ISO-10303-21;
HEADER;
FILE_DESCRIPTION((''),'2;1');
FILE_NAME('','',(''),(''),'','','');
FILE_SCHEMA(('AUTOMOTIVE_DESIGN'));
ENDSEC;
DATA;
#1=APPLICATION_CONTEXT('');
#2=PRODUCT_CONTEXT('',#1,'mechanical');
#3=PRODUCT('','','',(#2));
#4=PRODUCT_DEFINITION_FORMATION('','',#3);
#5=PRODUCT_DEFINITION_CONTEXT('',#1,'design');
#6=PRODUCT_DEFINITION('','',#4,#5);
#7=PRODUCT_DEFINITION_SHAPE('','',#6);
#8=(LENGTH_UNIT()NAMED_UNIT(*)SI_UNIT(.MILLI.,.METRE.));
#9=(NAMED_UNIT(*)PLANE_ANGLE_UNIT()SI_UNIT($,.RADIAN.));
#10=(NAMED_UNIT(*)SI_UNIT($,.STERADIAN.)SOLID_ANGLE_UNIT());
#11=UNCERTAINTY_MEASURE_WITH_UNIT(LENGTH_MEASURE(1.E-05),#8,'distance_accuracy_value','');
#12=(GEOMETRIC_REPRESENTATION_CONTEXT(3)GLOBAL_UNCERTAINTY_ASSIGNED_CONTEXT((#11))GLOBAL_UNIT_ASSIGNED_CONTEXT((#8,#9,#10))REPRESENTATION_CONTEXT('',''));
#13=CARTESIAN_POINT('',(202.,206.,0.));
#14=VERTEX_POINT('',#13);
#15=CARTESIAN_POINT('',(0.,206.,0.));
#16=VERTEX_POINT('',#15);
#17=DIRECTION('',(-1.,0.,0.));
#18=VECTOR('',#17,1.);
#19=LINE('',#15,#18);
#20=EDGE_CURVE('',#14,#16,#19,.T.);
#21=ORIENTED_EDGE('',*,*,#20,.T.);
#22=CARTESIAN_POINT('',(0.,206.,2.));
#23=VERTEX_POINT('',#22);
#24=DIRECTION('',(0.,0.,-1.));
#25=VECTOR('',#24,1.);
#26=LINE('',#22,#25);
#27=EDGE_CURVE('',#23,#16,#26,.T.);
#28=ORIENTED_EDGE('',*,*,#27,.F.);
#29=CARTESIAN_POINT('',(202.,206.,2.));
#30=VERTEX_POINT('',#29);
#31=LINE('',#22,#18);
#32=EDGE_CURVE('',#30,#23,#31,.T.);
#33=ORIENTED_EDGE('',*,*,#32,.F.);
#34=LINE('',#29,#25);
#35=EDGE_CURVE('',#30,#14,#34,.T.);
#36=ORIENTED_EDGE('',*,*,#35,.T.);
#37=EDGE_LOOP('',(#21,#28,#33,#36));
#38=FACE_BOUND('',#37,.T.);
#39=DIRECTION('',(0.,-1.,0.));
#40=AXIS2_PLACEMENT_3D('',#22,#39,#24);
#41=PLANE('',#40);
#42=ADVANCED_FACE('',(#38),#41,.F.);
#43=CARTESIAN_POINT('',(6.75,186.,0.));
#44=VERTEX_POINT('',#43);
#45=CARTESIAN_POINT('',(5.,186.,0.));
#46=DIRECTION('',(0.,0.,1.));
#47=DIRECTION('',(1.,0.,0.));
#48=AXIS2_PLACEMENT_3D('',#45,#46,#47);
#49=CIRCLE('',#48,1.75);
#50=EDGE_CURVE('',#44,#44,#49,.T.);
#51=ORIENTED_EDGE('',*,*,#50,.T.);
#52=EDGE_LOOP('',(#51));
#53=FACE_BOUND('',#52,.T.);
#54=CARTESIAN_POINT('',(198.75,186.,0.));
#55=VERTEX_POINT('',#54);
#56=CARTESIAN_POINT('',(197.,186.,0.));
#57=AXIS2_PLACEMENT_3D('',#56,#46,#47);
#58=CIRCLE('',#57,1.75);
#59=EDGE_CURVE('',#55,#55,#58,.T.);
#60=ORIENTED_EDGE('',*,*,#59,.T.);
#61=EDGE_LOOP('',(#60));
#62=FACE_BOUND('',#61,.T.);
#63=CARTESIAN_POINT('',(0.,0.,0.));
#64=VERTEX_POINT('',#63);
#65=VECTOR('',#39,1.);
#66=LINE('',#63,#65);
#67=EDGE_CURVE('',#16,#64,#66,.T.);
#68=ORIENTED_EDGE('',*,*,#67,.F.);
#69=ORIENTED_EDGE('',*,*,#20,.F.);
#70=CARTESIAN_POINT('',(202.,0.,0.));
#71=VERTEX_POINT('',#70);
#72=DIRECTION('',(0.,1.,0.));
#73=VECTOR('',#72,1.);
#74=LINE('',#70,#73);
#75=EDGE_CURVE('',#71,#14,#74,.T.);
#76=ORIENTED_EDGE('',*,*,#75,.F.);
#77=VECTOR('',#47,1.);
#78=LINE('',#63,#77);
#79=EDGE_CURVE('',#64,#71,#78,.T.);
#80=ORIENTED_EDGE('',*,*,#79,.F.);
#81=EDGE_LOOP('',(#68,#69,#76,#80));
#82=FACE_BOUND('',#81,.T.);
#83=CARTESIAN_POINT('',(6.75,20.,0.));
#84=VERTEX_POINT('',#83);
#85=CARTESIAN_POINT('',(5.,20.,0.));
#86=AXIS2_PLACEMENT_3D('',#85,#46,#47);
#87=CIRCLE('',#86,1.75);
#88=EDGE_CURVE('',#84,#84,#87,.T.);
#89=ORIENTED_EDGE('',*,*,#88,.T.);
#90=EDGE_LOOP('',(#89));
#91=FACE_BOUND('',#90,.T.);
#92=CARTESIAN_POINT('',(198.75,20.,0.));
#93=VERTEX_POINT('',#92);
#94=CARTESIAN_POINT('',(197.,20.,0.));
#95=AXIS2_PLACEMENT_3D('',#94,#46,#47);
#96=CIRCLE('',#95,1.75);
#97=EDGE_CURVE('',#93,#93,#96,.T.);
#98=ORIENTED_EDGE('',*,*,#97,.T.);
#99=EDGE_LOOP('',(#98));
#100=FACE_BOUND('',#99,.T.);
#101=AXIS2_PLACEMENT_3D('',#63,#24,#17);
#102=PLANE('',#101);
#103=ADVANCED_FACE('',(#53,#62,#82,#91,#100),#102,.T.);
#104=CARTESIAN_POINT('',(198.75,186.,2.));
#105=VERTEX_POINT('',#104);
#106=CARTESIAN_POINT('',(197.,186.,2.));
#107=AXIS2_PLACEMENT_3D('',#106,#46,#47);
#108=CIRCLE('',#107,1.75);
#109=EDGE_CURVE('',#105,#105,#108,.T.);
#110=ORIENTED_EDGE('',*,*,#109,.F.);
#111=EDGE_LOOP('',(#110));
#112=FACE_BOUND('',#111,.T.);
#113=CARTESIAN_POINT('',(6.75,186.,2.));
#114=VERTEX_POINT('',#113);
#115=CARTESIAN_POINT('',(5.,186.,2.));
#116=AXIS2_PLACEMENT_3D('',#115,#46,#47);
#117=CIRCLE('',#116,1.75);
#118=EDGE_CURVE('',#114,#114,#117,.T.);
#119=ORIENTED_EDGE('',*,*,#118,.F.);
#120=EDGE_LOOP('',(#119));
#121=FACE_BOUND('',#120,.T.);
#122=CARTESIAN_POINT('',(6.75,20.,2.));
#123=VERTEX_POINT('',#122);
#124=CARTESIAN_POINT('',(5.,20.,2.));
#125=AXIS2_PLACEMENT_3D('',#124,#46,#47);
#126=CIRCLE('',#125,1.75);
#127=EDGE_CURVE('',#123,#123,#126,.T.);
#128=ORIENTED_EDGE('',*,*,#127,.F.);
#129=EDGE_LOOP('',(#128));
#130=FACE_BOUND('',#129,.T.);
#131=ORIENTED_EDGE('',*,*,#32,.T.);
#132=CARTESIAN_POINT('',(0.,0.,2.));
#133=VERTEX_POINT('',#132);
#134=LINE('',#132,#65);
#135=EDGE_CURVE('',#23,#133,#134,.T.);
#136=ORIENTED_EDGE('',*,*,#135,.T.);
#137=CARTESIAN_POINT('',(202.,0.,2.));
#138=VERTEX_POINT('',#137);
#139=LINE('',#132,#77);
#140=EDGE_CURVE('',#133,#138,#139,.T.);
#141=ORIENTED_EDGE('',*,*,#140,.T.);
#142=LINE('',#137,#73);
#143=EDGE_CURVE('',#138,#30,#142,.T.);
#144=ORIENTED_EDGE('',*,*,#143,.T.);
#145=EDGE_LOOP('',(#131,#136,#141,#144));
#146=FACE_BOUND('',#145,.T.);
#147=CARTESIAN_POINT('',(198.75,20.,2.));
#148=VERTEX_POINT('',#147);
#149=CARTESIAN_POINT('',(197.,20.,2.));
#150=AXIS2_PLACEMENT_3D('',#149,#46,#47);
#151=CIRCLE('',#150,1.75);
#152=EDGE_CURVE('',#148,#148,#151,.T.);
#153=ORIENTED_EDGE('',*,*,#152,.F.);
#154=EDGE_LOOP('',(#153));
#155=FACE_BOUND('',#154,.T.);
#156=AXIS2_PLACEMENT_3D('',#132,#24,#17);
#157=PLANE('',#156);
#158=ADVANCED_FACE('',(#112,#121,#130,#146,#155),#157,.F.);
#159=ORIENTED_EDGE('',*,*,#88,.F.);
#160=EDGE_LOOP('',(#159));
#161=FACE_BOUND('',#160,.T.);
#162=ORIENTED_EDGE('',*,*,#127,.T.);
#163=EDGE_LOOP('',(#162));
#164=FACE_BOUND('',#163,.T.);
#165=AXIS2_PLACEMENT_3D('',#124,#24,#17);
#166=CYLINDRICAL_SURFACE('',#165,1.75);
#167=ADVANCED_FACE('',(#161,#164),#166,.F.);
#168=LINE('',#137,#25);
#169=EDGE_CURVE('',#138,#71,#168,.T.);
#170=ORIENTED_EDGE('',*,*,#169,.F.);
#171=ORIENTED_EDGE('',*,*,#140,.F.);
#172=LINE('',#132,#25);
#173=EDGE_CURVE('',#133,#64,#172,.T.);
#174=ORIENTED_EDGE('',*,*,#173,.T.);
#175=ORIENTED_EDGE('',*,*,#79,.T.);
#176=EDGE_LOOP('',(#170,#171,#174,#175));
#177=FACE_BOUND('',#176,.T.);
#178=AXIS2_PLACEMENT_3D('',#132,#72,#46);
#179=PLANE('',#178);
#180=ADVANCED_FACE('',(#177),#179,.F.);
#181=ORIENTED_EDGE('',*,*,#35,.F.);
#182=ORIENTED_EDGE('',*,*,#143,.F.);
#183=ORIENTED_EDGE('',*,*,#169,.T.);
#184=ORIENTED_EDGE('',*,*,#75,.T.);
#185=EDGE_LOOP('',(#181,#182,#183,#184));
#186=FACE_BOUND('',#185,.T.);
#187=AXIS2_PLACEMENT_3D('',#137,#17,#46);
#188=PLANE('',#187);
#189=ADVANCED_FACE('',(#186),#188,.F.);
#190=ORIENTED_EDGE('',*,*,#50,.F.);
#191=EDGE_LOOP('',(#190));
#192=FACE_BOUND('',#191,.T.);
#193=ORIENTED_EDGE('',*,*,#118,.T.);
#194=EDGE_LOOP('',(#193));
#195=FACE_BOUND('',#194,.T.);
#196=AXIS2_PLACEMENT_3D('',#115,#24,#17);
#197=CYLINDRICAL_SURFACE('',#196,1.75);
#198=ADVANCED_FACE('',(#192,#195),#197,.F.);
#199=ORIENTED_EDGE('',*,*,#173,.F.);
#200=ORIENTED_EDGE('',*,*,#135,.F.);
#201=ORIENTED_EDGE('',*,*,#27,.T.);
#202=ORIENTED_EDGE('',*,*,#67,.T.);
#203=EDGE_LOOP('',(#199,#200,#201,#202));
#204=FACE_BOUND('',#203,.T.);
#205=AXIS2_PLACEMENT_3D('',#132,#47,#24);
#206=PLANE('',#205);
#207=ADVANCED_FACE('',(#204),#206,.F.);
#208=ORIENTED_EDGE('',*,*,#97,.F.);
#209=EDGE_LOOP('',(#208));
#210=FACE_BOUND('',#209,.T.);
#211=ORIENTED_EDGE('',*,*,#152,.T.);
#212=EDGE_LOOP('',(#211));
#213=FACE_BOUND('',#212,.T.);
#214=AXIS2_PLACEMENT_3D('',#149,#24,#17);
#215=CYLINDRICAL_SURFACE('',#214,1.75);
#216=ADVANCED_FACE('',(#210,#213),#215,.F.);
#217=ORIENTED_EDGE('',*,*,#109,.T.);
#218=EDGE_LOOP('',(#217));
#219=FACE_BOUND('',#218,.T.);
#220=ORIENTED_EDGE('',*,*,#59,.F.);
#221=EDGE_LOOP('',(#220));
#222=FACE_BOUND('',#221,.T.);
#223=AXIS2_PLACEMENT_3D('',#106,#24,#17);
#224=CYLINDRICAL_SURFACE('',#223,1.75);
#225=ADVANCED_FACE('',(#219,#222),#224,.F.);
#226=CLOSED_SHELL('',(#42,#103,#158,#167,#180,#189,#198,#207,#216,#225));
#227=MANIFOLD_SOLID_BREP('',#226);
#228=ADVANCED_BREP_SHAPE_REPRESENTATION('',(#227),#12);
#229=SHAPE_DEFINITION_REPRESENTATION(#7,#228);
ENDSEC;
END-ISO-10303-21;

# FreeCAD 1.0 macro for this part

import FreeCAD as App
import Part
import Sketcher
Q = App.Units.Quantity

doc = App.newDocument("Part")
params = doc.addObject("Spreadsheet::Sheet", "Params")
for row, (alias, value) in enumerate([
    ("sketch1_diameter", "3.5 mm"),
    ("sketch1_width", "202 mm"),
    ("sketch1_height", "206 mm"),
    ("pad1_length", "2 mm"),
], start=1):
    params.set(f"A{row}", alias)
    params.set(f"B{row}", "=" + value)
    params.setAlias(f"B{row}", alias)

body = doc.addObject("PartDesign::Body", "Body")

sketch1 = body.newObject("Sketcher::SketchObject", "Sketch")
sketch1.AttachmentSupport = (doc.getObject("XY_Plane"), [""])
sketch1.MapMode = "FlatFace"
sketch1.addGeometry([
    Part.LineSegment(App.Vector(0, 206, 0), App.Vector(0, 0, 0)),
    Part.LineSegment(App.Vector(0, 0, 0), App.Vector(202, 0, 0)),
    Part.LineSegment(App.Vector(202, 0, 0), App.Vector(202, 206, 0)),
    Part.LineSegment(App.Vector(202, 206, 0), App.Vector(0, 206, 0)),
    Part.Circle(App.Vector(5, 20, 0), App.Vector(0, 0, 1), 1.8),
    Part.Circle(App.Vector(197, 20, 0), App.Vector(0, 0, 1), 1.8),
    Part.Circle(App.Vector(5, 186, 0), App.Vector(0, 0, 1), 1.8),
    Part.Circle(App.Vector(197, 186, 0), App.Vector(0, 0, 1), 1.8),
], False)
sketch1.addConstraint([
    Sketcher.Constraint("Coincident", 0, 2, 1, 1),
    Sketcher.Constraint("Coincident", 1, 2, 2, 1),
    Sketcher.Constraint("Coincident", 2, 2, 3, 1),
    Sketcher.Constraint("Coincident", 3, 2, 0, 1),
    Sketcher.Constraint("Vertical", 0),
    Sketcher.Constraint("Horizontal", 1),
    Sketcher.Constraint("Vertical", 2),
    Sketcher.Constraint("Horizontal", 3),
    Sketcher.Constraint("Coincident", 0, 2, -1, 1),
    Sketcher.Constraint("Equal", 4, 5),
    Sketcher.Constraint("Equal", 5, 6),
    Sketcher.Constraint("Equal", 6, 7),
    Sketcher.Constraint("Horizontal", 4, 3, 5, 3),
    Sketcher.Constraint("Horizontal", 6, 3, 7, 3),
    Sketcher.Constraint("Vertical", 4, 3, 6, 3),
    Sketcher.Constraint("Vertical", 5, 3, 7, 3),
    Sketcher.Constraint("Diameter", 4, Q("3.5 mm")),
    Sketcher.Constraint("DistanceX", 1, 1, 1, 2, Q("202 mm")),
    Sketcher.Constraint("DistanceY", 0, 2, 0, 1, Q("206 mm")),
    Sketcher.Constraint("DistanceX", -1, 1, 4, 3, Q("5 mm")),
    Sketcher.Constraint("DistanceY", -1, 1, 4, 3, Q("20 mm")),
    Sketcher.Constraint("DistanceX", -1, 1, 5, 3, Q("197 mm")),
    Sketcher.Constraint("DistanceY", -1, 1, 6, 3, Q("186 mm")),
])
sketch1.setExpression("Constraints[16]", "Params.sketch1_diameter")
sketch1.setExpression("Constraints[17]", "Params.sketch1_width")
sketch1.setExpression("Constraints[18]", "Params.sketch1_height")
pad1 = body.newObject("PartDesign::Pad", "Pad")
pad1.Profile = sketch1
pad1.setExpression("Length", "Params.pad1_length")

doc.recompute()
